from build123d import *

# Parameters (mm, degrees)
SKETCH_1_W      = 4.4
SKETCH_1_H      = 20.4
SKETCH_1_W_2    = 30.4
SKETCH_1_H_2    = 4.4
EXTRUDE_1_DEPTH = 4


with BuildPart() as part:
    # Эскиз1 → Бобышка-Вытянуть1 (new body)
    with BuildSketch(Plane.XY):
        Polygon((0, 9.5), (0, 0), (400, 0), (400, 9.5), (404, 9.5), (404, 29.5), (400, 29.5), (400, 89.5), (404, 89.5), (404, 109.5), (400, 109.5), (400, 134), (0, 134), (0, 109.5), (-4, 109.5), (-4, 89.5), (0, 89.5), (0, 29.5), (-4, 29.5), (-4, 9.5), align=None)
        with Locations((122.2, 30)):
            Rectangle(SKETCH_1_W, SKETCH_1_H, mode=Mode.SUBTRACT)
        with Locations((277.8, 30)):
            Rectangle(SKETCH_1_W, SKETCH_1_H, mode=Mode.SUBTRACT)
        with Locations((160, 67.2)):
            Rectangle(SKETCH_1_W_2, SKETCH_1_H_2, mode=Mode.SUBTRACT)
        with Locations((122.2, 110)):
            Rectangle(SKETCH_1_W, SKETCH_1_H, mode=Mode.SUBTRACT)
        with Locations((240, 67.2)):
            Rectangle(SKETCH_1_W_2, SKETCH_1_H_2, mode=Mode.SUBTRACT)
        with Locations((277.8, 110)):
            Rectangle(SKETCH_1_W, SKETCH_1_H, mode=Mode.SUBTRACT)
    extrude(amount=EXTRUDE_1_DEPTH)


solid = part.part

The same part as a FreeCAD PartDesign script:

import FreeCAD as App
import Part
import Sketcher
Q = App.Units.Quantity


def add_polygon(sketch, points):
    """Adds a closed chain of lines whose ends are joined by coincident constraints."""
    first, n = sketch.GeometryCount, len(points)
    for a, b in zip(points, points[1:] + points[:1]):
        sketch.addGeometry(Part.LineSegment(App.Vector(*a, 0), App.Vector(*b, 0)), False)
    for i in range(n):
        sketch.addConstraint(Sketcher.Constraint("Coincident", first + i, 2, first + (i + 1) % n, 1))

doc = App.newDocument("Part")
body = doc.addObject("PartDesign::Body", "Body")

sketch1 = body.newObject("Sketcher::SketchObject", "Sketch")
sketch1.AttachmentSupport = (doc.getObject("XY_Plane"), [""])
sketch1.MapMode = "FlatFace"
add_polygon(sketch1, [(0, 9.5), (0, 0), (400, 0), (400, 9.5), (404, 9.5), (404, 29.5), (400, 29.5), (400, 89.5), (404, 89.5), (404, 109.5), (400, 109.5), (400, 134), (0, 134), (0, 109.5), (-4, 109.5), (-4, 89.5), (0, 89.5), (0, 29.5), (-4, 29.5), (-4, 9.5)])
add_polygon(sketch1, [(124.4, 19.8), (120, 19.8), (120, 40.2), (124.4, 40.2)])
add_polygon(sketch1, [(175.2, 65), (144.8, 65), (144.8, 69.4), (175.2, 69.4)])
add_polygon(sketch1, [(280, 19.8), (275.6, 19.8), (275.6, 40.2), (280, 40.2)])
add_polygon(sketch1, [(255.2, 65), (224.8, 65), (224.8, 69.4), (255.2, 69.4)])
add_polygon(sketch1, [(124.4, 99.8), (120, 99.8), (120, 120.2), (124.4, 120.2)])
add_polygon(sketch1, [(280, 99.8), (275.6, 99.8), (275.6, 120.2), (280, 120.2)])
sketch1.addConstraint(Sketcher.Constraint("Vertical", 0))
sketch1.addConstraint(Sketcher.Constraint("Horizontal", 1))
sketch1.addConstraint(Sketcher.Constraint("Vertical", 2))
sketch1.addConstraint(Sketcher.Constraint("Horizontal", 3))
sketch1.addConstraint(Sketcher.Constraint("Vertical", 4))
sketch1.addConstraint(Sketcher.Constraint("Horizontal", 5))
sketch1.addConstraint(Sketcher.Constraint("Vertical", 6))
sketch1.addConstraint(Sketcher.Constraint("Horizontal", 7))
sketch1.addConstraint(Sketcher.Constraint("Vertical", 8))
sketch1.addConstraint(Sketcher.Constraint("Horizontal", 9))
sketch1.addConstraint(Sketcher.Constraint("Vertical", 10))
sketch1.addConstraint(Sketcher.Constraint("Horizontal", 11))
sketch1.addConstraint(Sketcher.Constraint("Vertical", 12))
sketch1.addConstraint(Sketcher.Constraint("Horizontal", 13))
sketch1.addConstraint(Sketcher.Constraint("Vertical", 14))
sketch1.addConstraint(Sketcher.Constraint("Horizontal", 15))
sketch1.addConstraint(Sketcher.Constraint("Vertical", 16))
sketch1.addConstraint(Sketcher.Constraint("Horizontal", 17))
sketch1.addConstraint(Sketcher.Constraint("Vertical", 18))
sketch1.addConstraint(Sketcher.Constraint("Horizontal", 19))
sketch1.addConstraint(Sketcher.Constraint("Horizontal", 20))
sketch1.addConstraint(Sketcher.Constraint("Vertical", 21))
sketch1.addConstraint(Sketcher.Constraint("Horizontal", 22))
sketch1.addConstraint(Sketcher.Constraint("Vertical", 23))
sketch1.addConstraint(Sketcher.Constraint("Horizontal", 24))
sketch1.addConstraint(Sketcher.Constraint("Vertical", 25))
sketch1.addConstraint(Sketcher.Constraint("Horizontal", 26))
sketch1.addConstraint(Sketcher.Constraint("Vertical", 27))
sketch1.addConstraint(Sketcher.Constraint("Horizontal", 28))
sketch1.addConstraint(Sketcher.Constraint("Vertical", 29))
sketch1.addConstraint(Sketcher.Constraint("Horizontal", 30))
sketch1.addConstraint(Sketcher.Constraint("Vertical", 31))
sketch1.addConstraint(Sketcher.Constraint("Horizontal", 32))
sketch1.addConstraint(Sketcher.Constraint("Vertical", 33))
sketch1.addConstraint(Sketcher.Constraint("Horizontal", 34))
sketch1.addConstraint(Sketcher.Constraint("Vertical", 35))
sketch1.addConstraint(Sketcher.Constraint("Horizontal", 36))
sketch1.addConstraint(Sketcher.Constraint("Vertical", 37))
sketch1.addConstraint(Sketcher.Constraint("Horizontal", 38))
sketch1.addConstraint(Sketcher.Constraint("Vertical", 39))
sketch1.addConstraint(Sketcher.Constraint("Horizontal", 40))
sketch1.addConstraint(Sketcher.Constraint("Vertical", 41))
sketch1.addConstraint(Sketcher.Constraint("Horizontal", 42))
sketch1.addConstraint(Sketcher.Constraint("Vertical", 43))
sketch1.addConstraint(Sketcher.Constraint("Coincident", 0, 2, -1, 1))
sketch1.addConstraint(Sketcher.Constraint("PointOnObject", 11, 2, -2))
sketch1.addConstraint(Sketcher.Constraint("PointOnObject", 15, 2, -2))
sketch1.addConstraint(Sketcher.Constraint("Horizontal", 9, 2, 12, 2))
sketch1.addConstraint(Sketcher.Constraint("Horizontal", 7, 2, 14, 2))
sketch1.addConstraint(Sketcher.Constraint("Horizontal", 5, 2, 16, 2))
sketch1.addConstraint(Sketcher.Constraint("Horizontal", 3, 2, 18, 2))
sketch1.addConstraint(Sketcher.Constraint("Horizontal", 23, 2, 28, 2))
sketch1.addConstraint(Sketcher.Constraint("Horizontal", 22, 2, 29, 2))
sketch1.addConstraint(Sketcher.Constraint("Horizontal", 27, 2, 32, 2))
sketch1.addConstraint(Sketcher.Constraint("Horizontal", 26, 2, 33, 2))
sketch1.addConstraint(Sketcher.Constraint("Horizontal", 39, 2, 40, 2))
sketch1.addConstraint(Sketcher.Constraint("Horizontal", 38, 2, 41, 2))
sketch1.addConstraint(Sketcher.Constraint("Vertical", 2, 2, 5, 2))
sketch1.addConstraint(Sketcher.Constraint("Vertical", 4, 2, 7, 2))
sketch1.addConstraint(Sketcher.Constraint("Vertical", 6, 2, 9, 2))
sketch1.addConstraint(Sketcher.Constraint("Vertical", 14, 2, 17, 2))
sketch1.addConstraint(Sketcher.Constraint("Vertical", 21, 2, 36, 2))
sketch1.addConstraint(Sketcher.Constraint("Vertical", 23, 2, 38, 2))
sketch1.addConstraint(Sketcher.Constraint("Vertical", 29, 2, 40, 2))
sketch1.addConstraint(Sketcher.Constraint("Vertical", 31, 2, 42, 2))
sketch1.addConstraint(Sketcher.Constraint("Equal", 9, 13))
sketch1.addConstraint(Sketcher.Constraint("Equal", 22, 28))
sketch1.addConstraint(Sketcher.Constraint("Equal", 26, 32))
sketch1.addConstraint(Sketcher.Constraint("Equal", 4, 8))
sketch1.addConstraint(Sketcher.Constraint("Equal", 42, 25))
sketch1.addConstraint(Sketcher.Constraint("Equal", 31, 37))
sketch1.addConstraint(Sketcher.Constraint("DistanceX", 1, 1, 1, 2, Q("400 mm")))
sketch1.addConstraint(Sketcher.Constraint("DistanceX", 3, 1, 3, 2, Q("4 mm")))
sketch1.addConstraint(Sketcher.Constraint("DistanceY", 4, 1, 4, 2, Q("20 mm")))
sketch1.addConstraint(Sketcher.Constraint("DistanceY", 6, 1, 6, 2, Q("60 mm")))
sketch1.addConstraint(Sketcher.Constraint("DistanceX", 20, 2, 20, 1, Q("4.4 mm")))
sketch1.addConstraint(Sketcher.Constraint("DistanceX", 24, 2, 24, 1, Q("30.4 mm")))
sketch1.addConstraint(Sketcher.Constraint("DistanceY", 0, 2, 0, 1, Q("9.5 mm")))
sketch1.addConstraint(Sketcher.Constraint("DistanceY", 10, 1, 10, 2, Q("24.5 mm")))
sketch1.addConstraint(Sketcher.Constraint("DistanceY", 21, 1, 21, 2, Q("20.4 mm")))
sketch1.addConstraint(Sketcher.Constraint("DistanceX", -1, 1, 20, 2, Q("120 mm")))
sketch1.addConstraint(Sketcher.Constraint("DistanceY", -1, 1, 24, 2, Q("65 mm")))
sketch1.addConstraint(Sketcher.Constraint("DistanceX", -1, 1, 30, 2, Q("280 mm")))
sketch1.addConstraint(Sketcher.Constraint("DistanceY", -1, 1, 20, 2, Q("19.8 mm")))
sketch1.addConstraint(Sketcher.Constraint("DistanceX", -1, 1, 24, 2, Q("144.8 mm")))
sketch1.addConstraint(Sketcher.Constraint("DistanceX", -1, 1, 32, 2, Q("224.8 mm")))
sketch1.addConstraint(Sketcher.Constraint("DistanceY", -1, 1, 36, 2, Q("99.8 mm")))
pad1 = body.newObject("PartDesign::Pad", "Pad")
pad1.Profile = sketch1
pad1.Length = 4

doc.recompute()
